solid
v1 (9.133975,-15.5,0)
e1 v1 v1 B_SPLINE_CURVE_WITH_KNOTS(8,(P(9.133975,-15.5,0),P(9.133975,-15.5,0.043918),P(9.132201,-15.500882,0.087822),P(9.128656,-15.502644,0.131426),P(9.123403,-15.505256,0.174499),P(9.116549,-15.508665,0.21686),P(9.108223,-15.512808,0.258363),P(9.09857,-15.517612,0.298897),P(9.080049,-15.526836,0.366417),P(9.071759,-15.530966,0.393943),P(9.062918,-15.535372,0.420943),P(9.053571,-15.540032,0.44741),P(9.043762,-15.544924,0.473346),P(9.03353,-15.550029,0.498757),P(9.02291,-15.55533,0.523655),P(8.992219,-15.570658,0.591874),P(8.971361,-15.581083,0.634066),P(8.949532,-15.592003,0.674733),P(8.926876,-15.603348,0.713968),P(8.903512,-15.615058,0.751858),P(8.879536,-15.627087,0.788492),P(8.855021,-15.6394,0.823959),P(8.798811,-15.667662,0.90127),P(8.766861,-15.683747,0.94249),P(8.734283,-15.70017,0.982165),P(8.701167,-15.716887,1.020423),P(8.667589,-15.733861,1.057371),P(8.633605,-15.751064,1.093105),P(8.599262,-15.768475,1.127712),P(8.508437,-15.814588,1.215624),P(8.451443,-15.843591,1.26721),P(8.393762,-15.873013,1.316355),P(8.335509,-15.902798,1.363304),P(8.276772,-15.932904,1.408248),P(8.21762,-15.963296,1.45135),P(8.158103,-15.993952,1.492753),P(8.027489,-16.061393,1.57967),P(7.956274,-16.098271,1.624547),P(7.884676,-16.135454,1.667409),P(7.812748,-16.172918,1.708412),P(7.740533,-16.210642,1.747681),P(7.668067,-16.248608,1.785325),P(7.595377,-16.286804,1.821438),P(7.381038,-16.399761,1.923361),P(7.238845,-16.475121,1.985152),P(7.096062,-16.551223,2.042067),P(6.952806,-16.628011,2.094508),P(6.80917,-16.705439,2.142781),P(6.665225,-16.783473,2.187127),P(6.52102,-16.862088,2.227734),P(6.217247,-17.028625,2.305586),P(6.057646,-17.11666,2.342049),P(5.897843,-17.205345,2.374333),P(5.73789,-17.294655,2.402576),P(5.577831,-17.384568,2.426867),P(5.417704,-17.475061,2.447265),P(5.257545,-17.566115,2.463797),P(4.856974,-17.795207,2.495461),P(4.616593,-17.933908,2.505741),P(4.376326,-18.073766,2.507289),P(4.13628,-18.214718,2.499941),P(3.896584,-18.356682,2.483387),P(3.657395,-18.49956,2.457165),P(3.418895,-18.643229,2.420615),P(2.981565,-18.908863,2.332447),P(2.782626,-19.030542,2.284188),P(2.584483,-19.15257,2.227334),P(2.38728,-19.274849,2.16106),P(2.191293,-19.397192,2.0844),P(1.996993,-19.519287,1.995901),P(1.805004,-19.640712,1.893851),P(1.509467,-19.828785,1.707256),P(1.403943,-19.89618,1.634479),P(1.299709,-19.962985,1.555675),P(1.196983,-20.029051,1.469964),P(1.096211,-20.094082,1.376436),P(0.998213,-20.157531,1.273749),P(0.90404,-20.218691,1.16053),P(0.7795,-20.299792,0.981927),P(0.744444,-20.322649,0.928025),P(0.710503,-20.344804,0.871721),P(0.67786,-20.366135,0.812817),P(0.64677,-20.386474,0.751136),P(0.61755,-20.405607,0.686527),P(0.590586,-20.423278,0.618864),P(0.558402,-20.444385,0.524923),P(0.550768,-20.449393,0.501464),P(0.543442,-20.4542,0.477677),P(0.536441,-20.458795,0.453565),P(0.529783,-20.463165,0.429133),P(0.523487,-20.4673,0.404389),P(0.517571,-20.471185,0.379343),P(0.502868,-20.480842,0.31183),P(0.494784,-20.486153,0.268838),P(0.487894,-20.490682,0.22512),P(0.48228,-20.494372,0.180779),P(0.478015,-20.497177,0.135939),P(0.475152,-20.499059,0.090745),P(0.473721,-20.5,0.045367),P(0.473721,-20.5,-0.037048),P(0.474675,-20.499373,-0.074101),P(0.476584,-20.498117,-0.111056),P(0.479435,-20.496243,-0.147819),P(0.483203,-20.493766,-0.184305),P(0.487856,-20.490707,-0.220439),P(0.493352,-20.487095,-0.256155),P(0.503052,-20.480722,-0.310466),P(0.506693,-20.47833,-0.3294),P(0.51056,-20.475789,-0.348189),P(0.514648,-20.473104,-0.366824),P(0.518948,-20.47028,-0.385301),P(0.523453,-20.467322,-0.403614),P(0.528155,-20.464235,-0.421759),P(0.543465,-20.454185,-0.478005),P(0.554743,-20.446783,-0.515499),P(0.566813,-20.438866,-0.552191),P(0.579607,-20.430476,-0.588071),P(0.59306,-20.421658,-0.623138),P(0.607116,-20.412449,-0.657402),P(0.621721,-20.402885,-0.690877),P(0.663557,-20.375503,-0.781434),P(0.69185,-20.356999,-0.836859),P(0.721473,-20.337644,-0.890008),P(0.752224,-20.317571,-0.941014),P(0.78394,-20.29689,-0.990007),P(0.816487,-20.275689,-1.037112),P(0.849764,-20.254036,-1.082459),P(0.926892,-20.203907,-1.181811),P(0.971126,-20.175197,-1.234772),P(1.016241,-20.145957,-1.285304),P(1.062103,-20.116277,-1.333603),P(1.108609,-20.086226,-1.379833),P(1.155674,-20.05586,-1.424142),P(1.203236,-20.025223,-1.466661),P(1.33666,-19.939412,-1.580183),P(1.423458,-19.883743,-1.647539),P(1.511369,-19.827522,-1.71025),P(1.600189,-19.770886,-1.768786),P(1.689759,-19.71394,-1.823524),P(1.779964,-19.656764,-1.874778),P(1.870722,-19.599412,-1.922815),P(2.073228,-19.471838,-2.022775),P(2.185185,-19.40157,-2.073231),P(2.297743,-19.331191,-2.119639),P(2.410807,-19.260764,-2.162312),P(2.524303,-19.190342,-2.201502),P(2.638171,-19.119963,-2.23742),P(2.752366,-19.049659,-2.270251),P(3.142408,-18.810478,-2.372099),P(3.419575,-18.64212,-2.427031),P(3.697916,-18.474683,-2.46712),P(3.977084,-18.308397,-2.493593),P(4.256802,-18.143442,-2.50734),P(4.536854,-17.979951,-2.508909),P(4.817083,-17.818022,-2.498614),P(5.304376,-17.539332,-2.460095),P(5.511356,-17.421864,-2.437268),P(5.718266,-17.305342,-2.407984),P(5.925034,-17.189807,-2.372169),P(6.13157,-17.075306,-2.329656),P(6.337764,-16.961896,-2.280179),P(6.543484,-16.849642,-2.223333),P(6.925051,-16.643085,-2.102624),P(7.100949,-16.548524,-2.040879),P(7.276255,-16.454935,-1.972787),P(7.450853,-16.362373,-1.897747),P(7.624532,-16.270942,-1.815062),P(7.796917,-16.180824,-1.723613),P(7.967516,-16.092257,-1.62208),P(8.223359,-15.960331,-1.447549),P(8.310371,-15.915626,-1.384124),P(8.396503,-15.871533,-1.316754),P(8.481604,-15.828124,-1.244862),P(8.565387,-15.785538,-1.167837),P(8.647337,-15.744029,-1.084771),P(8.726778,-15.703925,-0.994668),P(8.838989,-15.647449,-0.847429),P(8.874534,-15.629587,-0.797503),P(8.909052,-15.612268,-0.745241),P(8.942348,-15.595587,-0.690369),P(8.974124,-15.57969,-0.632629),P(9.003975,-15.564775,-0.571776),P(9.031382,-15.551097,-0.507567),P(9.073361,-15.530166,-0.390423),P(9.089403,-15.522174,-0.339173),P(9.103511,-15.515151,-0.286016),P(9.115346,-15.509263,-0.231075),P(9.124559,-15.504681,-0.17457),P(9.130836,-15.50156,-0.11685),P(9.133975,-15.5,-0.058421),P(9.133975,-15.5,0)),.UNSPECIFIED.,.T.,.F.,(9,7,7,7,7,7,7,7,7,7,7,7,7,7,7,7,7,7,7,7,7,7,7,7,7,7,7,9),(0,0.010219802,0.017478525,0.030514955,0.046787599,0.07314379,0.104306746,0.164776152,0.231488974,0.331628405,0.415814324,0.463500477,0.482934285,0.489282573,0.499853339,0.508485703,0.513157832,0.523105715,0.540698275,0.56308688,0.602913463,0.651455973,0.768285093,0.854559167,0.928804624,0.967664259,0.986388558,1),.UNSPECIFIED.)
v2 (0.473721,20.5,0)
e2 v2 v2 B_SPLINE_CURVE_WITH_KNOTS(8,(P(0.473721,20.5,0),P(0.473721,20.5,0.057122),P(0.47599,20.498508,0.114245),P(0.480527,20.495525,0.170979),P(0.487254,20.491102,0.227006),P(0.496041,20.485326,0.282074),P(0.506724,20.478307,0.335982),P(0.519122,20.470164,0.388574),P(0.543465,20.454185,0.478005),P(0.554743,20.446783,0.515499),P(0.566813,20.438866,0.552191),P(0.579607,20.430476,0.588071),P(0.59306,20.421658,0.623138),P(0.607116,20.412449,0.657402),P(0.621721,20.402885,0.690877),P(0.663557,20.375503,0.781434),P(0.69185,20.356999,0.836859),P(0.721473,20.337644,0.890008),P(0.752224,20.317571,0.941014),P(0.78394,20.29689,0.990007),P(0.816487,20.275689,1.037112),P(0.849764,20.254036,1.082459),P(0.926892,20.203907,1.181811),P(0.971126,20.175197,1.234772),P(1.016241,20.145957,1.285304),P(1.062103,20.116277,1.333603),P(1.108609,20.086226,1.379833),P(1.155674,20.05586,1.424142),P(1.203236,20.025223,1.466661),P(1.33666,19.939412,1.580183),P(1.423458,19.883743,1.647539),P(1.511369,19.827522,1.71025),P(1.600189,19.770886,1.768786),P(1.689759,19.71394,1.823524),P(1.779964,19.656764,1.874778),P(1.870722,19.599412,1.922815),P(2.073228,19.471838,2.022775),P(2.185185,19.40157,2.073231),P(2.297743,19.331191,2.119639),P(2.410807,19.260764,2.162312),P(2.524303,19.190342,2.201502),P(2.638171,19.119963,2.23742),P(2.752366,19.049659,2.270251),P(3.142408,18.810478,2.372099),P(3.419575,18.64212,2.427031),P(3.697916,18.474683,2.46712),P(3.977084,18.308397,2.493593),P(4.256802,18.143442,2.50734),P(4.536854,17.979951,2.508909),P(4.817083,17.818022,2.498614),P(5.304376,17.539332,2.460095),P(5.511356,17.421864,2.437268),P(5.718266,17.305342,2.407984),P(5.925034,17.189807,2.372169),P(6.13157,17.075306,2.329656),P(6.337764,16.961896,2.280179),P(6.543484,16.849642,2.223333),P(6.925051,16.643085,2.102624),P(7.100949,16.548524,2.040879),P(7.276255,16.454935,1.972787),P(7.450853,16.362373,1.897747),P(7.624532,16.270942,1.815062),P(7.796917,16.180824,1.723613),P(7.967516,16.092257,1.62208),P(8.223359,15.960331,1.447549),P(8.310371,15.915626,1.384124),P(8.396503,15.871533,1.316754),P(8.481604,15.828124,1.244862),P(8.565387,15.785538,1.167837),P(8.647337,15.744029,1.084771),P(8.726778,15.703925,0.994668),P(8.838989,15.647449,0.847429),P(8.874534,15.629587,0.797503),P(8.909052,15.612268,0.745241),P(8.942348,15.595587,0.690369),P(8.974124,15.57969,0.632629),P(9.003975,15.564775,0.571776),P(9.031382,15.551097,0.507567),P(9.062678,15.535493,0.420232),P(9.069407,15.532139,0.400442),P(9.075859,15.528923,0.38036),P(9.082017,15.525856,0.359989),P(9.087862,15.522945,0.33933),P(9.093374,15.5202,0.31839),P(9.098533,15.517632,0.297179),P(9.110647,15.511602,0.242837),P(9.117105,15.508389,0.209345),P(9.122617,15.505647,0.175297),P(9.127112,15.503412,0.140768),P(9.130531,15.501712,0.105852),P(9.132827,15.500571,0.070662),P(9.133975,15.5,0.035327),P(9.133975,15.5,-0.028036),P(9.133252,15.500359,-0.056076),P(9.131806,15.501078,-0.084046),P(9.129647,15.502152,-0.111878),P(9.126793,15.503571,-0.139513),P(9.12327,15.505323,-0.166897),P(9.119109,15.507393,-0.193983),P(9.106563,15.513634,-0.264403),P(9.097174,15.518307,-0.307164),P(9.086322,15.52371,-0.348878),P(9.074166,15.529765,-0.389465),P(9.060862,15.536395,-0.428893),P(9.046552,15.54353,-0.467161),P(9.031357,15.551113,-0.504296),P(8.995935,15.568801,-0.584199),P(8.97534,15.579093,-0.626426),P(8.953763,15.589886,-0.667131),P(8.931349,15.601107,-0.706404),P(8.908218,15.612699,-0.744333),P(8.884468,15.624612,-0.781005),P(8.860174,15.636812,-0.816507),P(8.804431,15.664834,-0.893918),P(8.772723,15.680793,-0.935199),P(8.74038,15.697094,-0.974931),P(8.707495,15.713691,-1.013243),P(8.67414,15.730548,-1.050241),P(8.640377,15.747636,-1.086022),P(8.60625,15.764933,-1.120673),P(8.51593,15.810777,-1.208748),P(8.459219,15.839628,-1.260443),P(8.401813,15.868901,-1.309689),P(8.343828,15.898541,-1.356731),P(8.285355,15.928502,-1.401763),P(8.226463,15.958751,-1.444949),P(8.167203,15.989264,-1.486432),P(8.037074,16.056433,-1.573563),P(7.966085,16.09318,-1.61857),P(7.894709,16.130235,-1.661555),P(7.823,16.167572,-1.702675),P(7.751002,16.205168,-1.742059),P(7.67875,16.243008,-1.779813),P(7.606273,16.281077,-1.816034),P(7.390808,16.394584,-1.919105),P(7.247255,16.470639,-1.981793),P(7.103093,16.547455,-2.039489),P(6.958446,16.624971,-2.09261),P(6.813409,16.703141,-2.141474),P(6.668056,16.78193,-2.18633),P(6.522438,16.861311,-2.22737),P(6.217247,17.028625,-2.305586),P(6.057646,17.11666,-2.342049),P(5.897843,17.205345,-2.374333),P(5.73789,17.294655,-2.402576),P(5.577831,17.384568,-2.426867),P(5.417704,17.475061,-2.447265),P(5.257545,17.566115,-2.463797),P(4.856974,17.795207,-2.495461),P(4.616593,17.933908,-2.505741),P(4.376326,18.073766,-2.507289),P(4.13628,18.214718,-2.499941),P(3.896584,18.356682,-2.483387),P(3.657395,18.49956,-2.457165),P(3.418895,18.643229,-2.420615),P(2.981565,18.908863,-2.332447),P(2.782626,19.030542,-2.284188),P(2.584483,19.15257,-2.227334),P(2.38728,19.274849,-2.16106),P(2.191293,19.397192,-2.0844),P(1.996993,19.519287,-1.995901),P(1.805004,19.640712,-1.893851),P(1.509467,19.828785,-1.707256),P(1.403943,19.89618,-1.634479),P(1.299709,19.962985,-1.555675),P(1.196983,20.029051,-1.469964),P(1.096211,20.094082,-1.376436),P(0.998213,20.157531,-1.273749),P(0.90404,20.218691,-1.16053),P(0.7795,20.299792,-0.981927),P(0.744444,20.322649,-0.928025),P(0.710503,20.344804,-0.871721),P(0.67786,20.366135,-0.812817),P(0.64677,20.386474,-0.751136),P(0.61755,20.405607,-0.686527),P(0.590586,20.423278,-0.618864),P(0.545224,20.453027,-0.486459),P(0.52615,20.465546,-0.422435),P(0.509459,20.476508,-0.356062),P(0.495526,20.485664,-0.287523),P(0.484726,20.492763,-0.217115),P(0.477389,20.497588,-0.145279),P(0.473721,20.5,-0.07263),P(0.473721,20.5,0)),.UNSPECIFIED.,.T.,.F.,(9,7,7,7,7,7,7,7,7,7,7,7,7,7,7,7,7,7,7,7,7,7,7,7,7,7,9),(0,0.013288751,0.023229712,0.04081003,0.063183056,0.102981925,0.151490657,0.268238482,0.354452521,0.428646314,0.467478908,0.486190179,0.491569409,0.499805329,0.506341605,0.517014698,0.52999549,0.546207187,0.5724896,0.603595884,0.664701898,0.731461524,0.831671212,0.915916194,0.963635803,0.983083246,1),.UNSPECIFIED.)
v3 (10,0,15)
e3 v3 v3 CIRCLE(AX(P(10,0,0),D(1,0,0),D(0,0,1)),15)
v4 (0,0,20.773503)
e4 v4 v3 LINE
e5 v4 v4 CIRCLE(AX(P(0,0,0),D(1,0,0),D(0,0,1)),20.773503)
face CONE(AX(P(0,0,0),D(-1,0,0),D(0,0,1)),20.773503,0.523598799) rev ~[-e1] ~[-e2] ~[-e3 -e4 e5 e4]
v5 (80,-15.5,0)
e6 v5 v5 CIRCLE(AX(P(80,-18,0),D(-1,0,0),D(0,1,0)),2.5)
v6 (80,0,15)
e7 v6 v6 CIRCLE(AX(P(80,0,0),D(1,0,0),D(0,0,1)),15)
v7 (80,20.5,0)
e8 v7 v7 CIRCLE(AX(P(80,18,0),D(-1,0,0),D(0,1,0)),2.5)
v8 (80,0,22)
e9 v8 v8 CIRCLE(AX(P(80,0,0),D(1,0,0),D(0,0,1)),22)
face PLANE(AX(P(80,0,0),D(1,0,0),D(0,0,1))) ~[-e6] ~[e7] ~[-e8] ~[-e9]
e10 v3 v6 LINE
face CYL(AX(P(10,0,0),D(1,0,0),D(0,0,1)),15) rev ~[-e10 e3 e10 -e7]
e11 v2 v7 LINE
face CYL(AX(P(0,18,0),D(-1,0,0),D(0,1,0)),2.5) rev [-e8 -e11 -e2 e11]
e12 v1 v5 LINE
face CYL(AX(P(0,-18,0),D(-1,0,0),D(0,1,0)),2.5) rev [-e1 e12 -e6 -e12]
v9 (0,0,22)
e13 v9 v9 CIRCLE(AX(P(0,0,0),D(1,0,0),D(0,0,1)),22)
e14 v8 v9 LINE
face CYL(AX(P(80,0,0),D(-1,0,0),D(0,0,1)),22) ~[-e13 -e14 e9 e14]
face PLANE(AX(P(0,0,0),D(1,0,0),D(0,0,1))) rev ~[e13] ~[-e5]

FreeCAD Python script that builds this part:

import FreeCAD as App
import Part
import Sketcher
from FreeCAD import Vector
Q = App.Units.Quantity

doc = App.newDocument("Part")
params = doc.addObject("Spreadsheet::Sheet", "Params")
for row, (alias, value) in enumerate([
    ("sketch1_width", "80 mm"),
    ("sketch1_width2", "70 mm"),
    ("sketch1_height", "7 mm"),
    ("revolution_angle", "360 deg"),
    ("sketch2_diameter", "5 mm"),
], start=1):
    params.set(f"A{row}", alias)
    params.set(f"B{row}", "=" + value)
    params.setAlias(f"B{row}", alias)

body = doc.addObject("PartDesign::Body", "Body")

# Sketch on XZ plane
sketch1 = doc.addObject("Sketcher::SketchObject", "Sketch")
body.addObject(sketch1)
sketch1.AttachmentSupport = (doc.XZ_Plane, [""])
sketch1.MapMode = "FlatFace"
sketch1.addGeometry([
    Part.LineSegment(Vector(80, 22, 0), Vector(0, 22, 0)),  # 0
    Part.LineSegment(Vector(0, 22, 0), Vector(0, 20.8, 0)),  # 1
    Part.LineSegment(Vector(0, 20.8, 0), Vector(10, 15, 0)),  # 2
    Part.LineSegment(Vector(10, 15, 0), Vector(80, 15, 0)),  # 3
    Part.LineSegment(Vector(80, 15, 0), Vector(80, 22, 0)),  # 4
], False)
sketch1.addConstraint([
    Sketcher.Constraint("Coincident", 0, 2, 1, 1),
    Sketcher.Constraint("Coincident", 1, 2, 2, 1),
    Sketcher.Constraint("Coincident", 2, 2, 3, 1),
    Sketcher.Constraint("Coincident", 3, 2, 4, 1),
    Sketcher.Constraint("Coincident", 4, 2, 0, 1),
    Sketcher.Constraint("Horizontal", 0),
    Sketcher.Constraint("Vertical", 1),
    Sketcher.Constraint("Horizontal", 3),
    Sketcher.Constraint("Vertical", 4),
    Sketcher.Constraint("PointOnObject", 0, 2, -2),
    Sketcher.Constraint("DistanceX", 0, 2, 0, 1, 80.0),
    Sketcher.Constraint("DistanceX", 3, 1, 3, 2, 70.0),
    Sketcher.Constraint("DistanceY", 4, 1, 4, 2, 7.0),
    Sketcher.Constraint("Angle", 2, Q("-30.000001 deg")),
    Sketcher.Constraint("DistanceY", -1, 1, 0, 2, 22.0),
])
sketch1.setExpression("Constraints[10]", "Params.sketch1_width")
sketch1.setExpression("Constraints[11]", "Params.sketch1_width2")
sketch1.setExpression("Constraints[12]", "Params.sketch1_height")
revolution = doc.addObject("PartDesign::Revolution", "Revolution")
body.addObject(revolution)
revolution.Profile = sketch1
revolution.ReferenceAxis = (sketch1, ["H_Axis"])
revolution.setExpression("Angle", "Params.revolution_angle")

# Sketch on YZ plane
sketch2 = doc.addObject("Sketcher::SketchObject", "Sketch001")
body.addObject(sketch2)
sketch2.AttachmentSupport = (doc.YZ_Plane, [""])
sketch2.MapMode = "FlatFace"
sketch2.addGeometry([
    Part.Circle(Vector(18, 0, 0), Vector(0, 0, 1), 2.5),
    Part.Circle(Vector(-18, 0, 0), Vector(0, 0, 1), 2.5),
], False)
sketch2.addConstraint([
    Sketcher.Constraint("Equal", 0, 1),
    Sketcher.Constraint("Symmetric", 0, 3, 1, 3, -1, 1),
    Sketcher.Constraint("PointOnObject", 0, 3, -1),
    Sketcher.Constraint("Diameter", 0, 5.0),
    Sketcher.Constraint("DistanceX", -1, 1, 0, 3, 18.0),
])
sketch2.setExpression("Constraints[3]", "Params.sketch2_diameter")
pocket1 = doc.addObject("PartDesign::Pocket", "Pocket")
body.addObject(pocket1)
pocket1.Profile = sketch2
pocket1.Type = "ThroughAll"
pocket1.Reversed = True

doc.recompute()
